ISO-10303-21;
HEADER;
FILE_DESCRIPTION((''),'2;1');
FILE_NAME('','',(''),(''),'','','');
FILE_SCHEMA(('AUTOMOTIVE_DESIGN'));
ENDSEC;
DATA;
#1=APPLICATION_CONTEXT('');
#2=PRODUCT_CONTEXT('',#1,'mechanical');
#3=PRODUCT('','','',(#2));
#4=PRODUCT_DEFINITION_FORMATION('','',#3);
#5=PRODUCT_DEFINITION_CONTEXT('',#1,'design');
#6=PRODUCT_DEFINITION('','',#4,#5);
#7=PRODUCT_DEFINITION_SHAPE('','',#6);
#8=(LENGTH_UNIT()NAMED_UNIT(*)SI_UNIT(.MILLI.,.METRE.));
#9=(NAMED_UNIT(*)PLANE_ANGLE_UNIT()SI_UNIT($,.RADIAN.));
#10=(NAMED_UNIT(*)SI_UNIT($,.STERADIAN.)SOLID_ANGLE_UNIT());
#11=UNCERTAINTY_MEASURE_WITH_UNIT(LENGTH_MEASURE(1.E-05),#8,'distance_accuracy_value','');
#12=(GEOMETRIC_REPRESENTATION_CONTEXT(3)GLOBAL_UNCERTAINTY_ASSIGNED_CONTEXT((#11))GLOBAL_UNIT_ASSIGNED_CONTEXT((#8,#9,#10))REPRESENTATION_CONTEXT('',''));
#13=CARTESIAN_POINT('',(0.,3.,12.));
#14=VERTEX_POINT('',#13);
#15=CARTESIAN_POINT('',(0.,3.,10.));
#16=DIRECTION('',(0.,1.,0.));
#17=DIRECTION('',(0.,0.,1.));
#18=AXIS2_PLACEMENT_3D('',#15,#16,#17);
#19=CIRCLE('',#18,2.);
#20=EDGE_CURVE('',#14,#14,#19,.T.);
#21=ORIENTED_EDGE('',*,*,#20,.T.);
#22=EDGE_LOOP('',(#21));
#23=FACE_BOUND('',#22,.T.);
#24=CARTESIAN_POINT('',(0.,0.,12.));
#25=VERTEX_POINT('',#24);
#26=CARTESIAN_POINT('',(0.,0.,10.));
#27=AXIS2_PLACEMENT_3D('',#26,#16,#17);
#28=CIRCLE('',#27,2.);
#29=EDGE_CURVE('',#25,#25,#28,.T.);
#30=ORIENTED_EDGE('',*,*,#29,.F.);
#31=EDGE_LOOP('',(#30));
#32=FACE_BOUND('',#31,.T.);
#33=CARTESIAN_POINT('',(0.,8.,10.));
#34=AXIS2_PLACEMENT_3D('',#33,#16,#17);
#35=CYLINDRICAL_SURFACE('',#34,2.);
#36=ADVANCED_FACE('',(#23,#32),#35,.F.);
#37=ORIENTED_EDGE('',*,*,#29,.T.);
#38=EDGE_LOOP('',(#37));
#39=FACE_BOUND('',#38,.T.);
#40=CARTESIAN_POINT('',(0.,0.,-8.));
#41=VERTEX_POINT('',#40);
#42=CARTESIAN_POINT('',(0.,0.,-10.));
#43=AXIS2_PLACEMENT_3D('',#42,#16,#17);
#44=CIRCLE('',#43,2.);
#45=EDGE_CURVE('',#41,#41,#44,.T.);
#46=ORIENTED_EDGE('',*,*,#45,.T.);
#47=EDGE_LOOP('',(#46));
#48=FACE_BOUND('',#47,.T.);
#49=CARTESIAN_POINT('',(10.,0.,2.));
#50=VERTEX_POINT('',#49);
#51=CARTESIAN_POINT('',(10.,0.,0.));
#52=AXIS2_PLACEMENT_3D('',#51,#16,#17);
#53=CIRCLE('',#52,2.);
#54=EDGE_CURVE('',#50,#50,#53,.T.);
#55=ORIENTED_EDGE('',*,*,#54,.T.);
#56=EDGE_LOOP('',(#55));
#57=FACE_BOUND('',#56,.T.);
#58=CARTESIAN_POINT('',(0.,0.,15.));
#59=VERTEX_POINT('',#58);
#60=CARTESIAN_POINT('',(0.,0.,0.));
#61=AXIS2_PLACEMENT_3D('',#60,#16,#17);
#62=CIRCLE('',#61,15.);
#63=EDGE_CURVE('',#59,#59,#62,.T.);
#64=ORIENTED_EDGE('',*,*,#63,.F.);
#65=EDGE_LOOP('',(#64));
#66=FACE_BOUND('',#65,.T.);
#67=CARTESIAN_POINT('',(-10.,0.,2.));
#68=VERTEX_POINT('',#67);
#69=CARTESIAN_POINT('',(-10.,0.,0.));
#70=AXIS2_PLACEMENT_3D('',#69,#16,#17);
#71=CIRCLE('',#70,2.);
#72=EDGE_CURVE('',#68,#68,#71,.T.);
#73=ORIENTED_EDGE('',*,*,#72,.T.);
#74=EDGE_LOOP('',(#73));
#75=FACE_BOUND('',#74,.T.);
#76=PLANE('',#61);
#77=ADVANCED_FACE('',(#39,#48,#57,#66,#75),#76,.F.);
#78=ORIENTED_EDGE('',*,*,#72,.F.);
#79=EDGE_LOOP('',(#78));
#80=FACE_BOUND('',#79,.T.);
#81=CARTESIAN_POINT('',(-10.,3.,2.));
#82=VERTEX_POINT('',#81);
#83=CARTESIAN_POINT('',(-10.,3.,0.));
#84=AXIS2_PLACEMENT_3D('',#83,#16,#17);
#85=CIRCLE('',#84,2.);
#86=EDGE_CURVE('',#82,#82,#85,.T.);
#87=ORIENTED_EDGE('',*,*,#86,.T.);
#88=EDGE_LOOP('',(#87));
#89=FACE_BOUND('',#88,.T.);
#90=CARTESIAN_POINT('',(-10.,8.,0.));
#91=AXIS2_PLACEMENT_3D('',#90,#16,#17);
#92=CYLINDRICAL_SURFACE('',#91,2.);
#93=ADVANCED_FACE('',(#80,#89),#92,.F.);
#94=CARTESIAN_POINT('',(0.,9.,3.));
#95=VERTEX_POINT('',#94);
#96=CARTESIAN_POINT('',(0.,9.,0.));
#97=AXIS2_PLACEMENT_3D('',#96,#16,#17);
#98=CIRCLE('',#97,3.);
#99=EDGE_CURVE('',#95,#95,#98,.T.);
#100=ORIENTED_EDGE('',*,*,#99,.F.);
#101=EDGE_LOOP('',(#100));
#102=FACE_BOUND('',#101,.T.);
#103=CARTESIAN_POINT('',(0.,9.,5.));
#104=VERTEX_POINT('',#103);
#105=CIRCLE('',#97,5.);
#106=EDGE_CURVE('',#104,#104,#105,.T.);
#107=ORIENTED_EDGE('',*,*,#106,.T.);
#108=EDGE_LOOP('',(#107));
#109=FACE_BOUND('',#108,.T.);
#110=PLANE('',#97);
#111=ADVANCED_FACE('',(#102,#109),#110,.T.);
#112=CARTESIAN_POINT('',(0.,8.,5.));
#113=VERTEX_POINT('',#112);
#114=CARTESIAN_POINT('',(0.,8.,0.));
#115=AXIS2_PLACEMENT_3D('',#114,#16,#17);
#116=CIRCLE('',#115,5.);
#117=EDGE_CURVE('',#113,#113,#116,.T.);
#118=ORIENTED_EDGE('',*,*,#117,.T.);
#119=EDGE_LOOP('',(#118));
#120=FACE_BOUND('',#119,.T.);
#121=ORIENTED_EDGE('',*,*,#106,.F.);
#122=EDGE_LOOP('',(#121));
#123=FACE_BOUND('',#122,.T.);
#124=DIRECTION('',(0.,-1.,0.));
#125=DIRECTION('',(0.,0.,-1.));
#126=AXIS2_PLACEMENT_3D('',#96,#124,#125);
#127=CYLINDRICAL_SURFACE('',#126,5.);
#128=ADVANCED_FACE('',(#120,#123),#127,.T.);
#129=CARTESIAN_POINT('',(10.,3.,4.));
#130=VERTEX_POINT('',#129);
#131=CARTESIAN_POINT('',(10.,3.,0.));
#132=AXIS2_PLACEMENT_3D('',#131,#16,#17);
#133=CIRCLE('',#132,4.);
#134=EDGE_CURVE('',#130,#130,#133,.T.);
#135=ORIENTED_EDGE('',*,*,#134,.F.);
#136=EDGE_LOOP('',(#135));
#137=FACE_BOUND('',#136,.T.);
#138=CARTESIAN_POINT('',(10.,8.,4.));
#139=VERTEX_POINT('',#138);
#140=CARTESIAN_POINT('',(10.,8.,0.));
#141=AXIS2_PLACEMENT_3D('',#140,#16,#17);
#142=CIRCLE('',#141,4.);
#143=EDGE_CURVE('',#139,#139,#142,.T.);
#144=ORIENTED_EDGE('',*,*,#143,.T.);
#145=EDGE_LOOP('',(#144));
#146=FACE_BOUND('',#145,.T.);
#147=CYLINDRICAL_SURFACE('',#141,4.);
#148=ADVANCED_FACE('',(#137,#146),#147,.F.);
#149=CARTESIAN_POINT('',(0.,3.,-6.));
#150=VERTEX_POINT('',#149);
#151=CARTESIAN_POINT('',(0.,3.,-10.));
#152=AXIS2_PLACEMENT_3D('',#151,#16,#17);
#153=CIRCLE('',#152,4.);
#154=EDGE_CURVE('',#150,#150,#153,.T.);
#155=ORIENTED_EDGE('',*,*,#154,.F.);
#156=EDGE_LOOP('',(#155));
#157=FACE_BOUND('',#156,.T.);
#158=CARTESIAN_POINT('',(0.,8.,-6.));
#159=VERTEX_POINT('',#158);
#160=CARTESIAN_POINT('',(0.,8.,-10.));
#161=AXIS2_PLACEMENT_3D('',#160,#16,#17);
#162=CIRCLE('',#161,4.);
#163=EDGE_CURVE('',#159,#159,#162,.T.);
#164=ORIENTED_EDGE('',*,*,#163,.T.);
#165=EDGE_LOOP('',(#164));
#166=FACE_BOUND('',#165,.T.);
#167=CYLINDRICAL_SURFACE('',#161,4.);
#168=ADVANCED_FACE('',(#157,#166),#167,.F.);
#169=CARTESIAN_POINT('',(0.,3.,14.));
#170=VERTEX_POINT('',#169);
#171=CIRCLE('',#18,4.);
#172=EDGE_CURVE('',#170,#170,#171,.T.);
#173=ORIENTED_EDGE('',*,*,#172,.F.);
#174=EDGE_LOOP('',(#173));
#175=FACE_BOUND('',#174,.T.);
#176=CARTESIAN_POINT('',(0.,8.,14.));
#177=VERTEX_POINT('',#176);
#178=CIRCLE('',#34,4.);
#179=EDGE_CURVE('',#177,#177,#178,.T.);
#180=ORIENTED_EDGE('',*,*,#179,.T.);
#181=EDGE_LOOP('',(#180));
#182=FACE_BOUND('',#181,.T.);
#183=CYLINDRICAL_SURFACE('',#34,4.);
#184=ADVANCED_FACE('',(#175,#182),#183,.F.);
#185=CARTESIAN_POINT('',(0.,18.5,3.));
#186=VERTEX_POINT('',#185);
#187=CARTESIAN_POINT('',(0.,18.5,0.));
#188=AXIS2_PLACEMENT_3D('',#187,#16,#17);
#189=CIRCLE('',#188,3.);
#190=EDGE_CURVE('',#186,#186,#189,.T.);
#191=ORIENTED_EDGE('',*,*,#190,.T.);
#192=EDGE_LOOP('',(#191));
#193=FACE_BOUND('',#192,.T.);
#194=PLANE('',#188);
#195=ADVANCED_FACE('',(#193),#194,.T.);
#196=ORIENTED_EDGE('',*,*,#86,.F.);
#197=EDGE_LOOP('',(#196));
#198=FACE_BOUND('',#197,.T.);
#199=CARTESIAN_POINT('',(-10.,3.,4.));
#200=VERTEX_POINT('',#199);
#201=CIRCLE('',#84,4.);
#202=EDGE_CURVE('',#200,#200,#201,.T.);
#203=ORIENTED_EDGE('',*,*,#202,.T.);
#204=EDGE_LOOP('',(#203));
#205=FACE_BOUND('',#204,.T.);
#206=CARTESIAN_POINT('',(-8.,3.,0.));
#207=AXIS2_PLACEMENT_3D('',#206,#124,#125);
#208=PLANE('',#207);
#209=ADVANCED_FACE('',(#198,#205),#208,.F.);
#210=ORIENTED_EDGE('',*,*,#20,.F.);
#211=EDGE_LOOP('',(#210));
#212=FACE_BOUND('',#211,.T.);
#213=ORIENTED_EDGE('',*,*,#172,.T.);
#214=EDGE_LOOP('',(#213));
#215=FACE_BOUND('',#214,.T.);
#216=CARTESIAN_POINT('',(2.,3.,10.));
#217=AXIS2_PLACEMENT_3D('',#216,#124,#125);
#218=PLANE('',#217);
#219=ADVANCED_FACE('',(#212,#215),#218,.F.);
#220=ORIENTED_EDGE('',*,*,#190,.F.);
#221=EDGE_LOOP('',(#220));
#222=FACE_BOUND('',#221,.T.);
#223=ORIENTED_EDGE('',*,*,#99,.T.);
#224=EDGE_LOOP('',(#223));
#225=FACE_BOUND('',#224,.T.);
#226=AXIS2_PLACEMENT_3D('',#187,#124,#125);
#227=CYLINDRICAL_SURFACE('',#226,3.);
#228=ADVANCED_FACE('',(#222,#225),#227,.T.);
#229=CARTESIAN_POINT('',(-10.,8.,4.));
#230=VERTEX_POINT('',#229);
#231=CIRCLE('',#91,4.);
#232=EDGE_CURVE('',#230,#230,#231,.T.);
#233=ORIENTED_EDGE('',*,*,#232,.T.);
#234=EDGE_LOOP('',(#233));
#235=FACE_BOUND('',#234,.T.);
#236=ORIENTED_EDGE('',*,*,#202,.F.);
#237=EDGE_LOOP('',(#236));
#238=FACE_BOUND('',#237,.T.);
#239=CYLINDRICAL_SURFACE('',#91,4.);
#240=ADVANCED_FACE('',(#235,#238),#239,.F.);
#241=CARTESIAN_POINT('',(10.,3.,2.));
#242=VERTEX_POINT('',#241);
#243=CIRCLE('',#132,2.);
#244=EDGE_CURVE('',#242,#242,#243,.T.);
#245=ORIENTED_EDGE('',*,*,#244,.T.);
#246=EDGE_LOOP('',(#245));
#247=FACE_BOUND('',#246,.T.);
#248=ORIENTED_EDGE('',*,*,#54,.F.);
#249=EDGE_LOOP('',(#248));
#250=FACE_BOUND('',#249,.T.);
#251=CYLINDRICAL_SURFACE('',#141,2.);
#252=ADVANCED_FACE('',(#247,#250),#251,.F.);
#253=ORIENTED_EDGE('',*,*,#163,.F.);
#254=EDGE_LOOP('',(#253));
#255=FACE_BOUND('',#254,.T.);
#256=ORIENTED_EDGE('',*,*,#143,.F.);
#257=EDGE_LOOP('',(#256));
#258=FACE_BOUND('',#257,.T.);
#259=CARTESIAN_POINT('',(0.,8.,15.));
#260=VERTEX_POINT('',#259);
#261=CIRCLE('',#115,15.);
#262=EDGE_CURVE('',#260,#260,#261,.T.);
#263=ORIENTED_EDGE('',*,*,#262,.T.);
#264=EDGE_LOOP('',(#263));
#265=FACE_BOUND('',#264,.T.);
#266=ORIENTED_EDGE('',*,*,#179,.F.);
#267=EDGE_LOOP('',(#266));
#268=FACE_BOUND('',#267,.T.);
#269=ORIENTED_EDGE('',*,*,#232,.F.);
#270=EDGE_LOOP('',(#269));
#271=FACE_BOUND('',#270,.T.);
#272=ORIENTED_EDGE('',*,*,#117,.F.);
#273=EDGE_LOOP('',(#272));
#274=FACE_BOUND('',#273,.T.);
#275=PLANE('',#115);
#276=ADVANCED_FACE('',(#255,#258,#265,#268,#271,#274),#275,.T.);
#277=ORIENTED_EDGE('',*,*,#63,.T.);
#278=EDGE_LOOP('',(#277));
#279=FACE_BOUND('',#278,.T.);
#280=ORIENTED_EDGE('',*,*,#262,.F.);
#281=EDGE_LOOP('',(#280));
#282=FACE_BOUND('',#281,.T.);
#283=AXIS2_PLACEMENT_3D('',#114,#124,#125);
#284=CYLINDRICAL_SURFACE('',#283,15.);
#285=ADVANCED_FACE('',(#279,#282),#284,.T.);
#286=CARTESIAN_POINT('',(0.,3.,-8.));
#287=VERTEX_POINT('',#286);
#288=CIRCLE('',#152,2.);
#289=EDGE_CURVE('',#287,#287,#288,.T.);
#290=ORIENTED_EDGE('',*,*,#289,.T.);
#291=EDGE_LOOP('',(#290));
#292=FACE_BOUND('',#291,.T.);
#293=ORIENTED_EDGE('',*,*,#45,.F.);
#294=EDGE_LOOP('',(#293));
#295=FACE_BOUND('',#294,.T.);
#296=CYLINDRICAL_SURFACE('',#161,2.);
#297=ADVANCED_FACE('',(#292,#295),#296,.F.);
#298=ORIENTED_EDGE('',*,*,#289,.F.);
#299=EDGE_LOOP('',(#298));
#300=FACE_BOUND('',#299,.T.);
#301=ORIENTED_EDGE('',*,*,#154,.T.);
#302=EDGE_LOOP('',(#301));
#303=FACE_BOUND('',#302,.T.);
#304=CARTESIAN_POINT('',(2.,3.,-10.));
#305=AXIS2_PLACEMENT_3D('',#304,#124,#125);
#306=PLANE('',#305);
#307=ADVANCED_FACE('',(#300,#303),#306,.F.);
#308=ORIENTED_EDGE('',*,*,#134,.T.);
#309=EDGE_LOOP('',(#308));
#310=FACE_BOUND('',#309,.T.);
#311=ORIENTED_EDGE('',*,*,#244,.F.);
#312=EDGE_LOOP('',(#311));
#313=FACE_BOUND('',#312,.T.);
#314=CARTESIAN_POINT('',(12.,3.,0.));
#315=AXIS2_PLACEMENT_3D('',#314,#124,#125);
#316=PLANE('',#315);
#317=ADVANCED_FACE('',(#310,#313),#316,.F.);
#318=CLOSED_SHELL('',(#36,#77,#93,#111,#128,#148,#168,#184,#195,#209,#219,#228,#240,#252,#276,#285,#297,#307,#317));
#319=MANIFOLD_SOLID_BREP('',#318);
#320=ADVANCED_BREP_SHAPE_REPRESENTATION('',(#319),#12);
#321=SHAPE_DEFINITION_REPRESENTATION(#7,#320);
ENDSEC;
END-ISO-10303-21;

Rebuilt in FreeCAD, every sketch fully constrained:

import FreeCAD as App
import Part
import Sketcher
from FreeCAD import Vector
Q = App.Units.Quantity

doc = App.newDocument("Part")
body = doc.addObject("PartDesign::Body", "Body")

# Sketch on XZ plane
sketch1 = doc.addObject("Sketcher::SketchObject", "Sketch")
body.addObject(sketch1)
sketch1.AttachmentSupport = (doc.XZ_Plane, [""])
sketch1.MapMode = "FlatFace"
sketch1.addGeometry(Part.Circle(Vector(0, 0, 0), Vector(0, 0, 1), 15), False)
sketch1.addConstraint([
    Sketcher.Constraint("Coincident", 0, 3, -1, 1),
    Sketcher.Constraint("Diameter", 0, Q("30 mm")),
])
pad1 = doc.addObject("PartDesign::Pad", "Pad")
body.addObject(pad1)
pad1.Profile = sketch1
pad1.Length = 8
pad1.Reversed = True

# Sketch on XZ plane
sketch2 = doc.addObject("Sketcher::SketchObject", "Sketch001")
body.addObject(sketch2)
sketch2.AttachmentSupport = (doc.XZ_Plane, [""])
sketch2.MapMode = "FlatFace"
sketch2.AttachmentOffset = App.Placement(Vector(0, 0, -8), App.Rotation())
sketch2.addGeometry(Part.Circle(Vector(0, 0, 0), Vector(0, 0, 1), 5), False)
sketch2.addConstraint([
    Sketcher.Constraint("Coincident", 0, 3, -1, 1),
    Sketcher.Constraint("Diameter", 0, Q("10 mm")),
])
pad2 = doc.addObject("PartDesign::Pad", "Pad001")
body.addObject(pad2)
pad2.Profile = sketch2
pad2.Length = 1
pad2.Reversed = True

# Sketch on XZ plane
sketch3 = doc.addObject("Sketcher::SketchObject", "Sketch002")
body.addObject(sketch3)
sketch3.AttachmentSupport = (doc.XZ_Plane, [""])
sketch3.MapMode = "FlatFace"
sketch3.AttachmentOffset = App.Placement(Vector(0, 0, -9), App.Rotation())
sketch3.addGeometry(Part.Circle(Vector(0, 0, 0), Vector(0, 0, 1), 3), False)
sketch3.addConstraint([
    Sketcher.Constraint("Coincident", 0, 3, -1, 1),
    Sketcher.Constraint("Diameter", 0, Q("6 mm")),
])
pad3 = doc.addObject("PartDesign::Pad", "Pad002")
body.addObject(pad3)
pad3.Profile = sketch3
pad3.Length = 9.5
pad3.Reversed = True

# Sketch on XZ plane
sketch4 = doc.addObject("Sketcher::SketchObject", "Sketch003")
body.addObject(sketch4)
sketch4.AttachmentSupport = (doc.XZ_Plane, [""])
sketch4.MapMode = "FlatFace"
sketch4.AttachmentOffset = App.Placement(Vector(0, 0, -8), App.Rotation())
sketch4.addGeometry([
    Part.Circle(Vector(-10, 0, 0), Vector(0, 0, 1), 2),
    Part.Circle(Vector(0, -10, 0), Vector(0, 0, 1), 2),
    Part.Circle(Vector(10, 0, 0), Vector(0, 0, 1), 2),
    Part.Circle(Vector(0, 10, 0), Vector(0, 0, 1), 2),
], False)
sketch4.addConstraint([
    Sketcher.Constraint("Equal", 0, 1),
    Sketcher.Constraint("Equal", 1, 2),
    Sketcher.Constraint("Equal", 2, 3),
    Sketcher.Constraint("Symmetric", 0, 3, 2, 3, -1, 1),
    Sketcher.Constraint("Symmetric", 1, 3, 3, 3, -1, 1),
    Sketcher.Constraint("PointOnObject", 0, 3, -1),
    Sketcher.Constraint("PointOnObject", 1, 3, -2),
    Sketcher.Constraint("Diameter", 0, Q("4 mm")),
    Sketcher.Constraint("DistanceX", 0, 3, -1, 1, Q("10 mm")),
    Sketcher.Constraint("DistanceY", 1, 3, -1, 1, Q("10 mm")),
])
doc.recompute()
hole = doc.addObject("PartDesign::Hole", "Hole")
body.addObject(hole)
hole.Profile = sketch4
hole.ThreadType = "None"
hole.Diameter = 4
hole.DepthType = "ThroughAll"
hole.HoleCutType = "Counterbore"
hole.HoleCutDiameter = 8
hole.HoleCutDepth = 5
hole.Reversed = True

doc.recompute()
